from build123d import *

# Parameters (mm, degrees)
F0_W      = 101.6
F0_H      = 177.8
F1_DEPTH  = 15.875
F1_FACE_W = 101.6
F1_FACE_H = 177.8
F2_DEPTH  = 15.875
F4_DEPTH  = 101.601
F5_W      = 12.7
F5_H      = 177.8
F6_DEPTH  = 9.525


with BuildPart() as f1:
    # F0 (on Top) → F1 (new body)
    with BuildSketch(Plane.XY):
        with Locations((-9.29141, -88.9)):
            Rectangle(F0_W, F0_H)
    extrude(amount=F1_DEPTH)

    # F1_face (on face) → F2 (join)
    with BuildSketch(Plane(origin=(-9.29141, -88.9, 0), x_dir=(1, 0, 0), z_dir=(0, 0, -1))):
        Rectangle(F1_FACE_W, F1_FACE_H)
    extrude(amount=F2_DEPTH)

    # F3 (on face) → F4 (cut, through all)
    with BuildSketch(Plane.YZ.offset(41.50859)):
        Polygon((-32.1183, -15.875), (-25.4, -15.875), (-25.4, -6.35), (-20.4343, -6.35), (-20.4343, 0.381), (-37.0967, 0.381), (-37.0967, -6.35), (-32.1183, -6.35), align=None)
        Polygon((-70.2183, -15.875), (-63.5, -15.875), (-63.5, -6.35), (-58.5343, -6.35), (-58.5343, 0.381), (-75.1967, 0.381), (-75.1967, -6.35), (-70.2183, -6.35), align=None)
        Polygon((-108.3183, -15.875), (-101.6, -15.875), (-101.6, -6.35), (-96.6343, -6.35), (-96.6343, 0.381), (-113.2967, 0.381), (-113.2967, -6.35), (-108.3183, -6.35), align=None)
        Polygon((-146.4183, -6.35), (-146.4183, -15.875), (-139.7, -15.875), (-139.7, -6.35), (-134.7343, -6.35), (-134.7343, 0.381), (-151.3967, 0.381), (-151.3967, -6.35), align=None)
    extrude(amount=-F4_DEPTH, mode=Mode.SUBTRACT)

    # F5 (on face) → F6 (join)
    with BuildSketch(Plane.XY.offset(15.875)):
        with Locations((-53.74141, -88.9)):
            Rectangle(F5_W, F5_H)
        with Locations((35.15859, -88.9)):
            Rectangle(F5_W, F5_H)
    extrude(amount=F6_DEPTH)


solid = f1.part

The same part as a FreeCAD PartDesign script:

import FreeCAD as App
import Part
import Sketcher

V = App.Vector
Q = App.Units.Quantity


def add_polygon(sketch, points):
    """Adds a closed chain of lines whose ends are joined by coincident constraints."""
    first, n = sketch.GeometryCount, len(points)
    for a, b in zip(points, points[1:] + points[:1]):
        sketch.addGeometry(Part.LineSegment(App.Vector(*a, 0), App.Vector(*b, 0)), False)
    for i in range(n):
        sketch.addConstraint(Sketcher.Constraint("Coincident", first + i, 2, first + (i + 1) % n, 1))

doc = App.newDocument("Part")
body = doc.addObject("PartDesign::Body", "Body")

# Sketch on XY plane
sketch1 = body.newObject("Sketcher::SketchObject", "Sketch")
sketch1.AttachmentSupport = (doc.getObject("XY_Plane"), [""])
sketch1.MapMode = "FlatFace"
add_polygon(sketch1, [(-60, 0), (-60, -178), (42, -178), (42, 0)])  # lines 0-3
sketch1.addConstraint(Sketcher.Constraint("Vertical", 0))
sketch1.addConstraint(Sketcher.Constraint("Horizontal", 1))
sketch1.addConstraint(Sketcher.Constraint("Vertical", 2))
sketch1.addConstraint(Sketcher.Constraint("Horizontal", 3))
sketch1.addConstraint(Sketcher.Constraint("PointOnObject", 2, 2, -1))
sketch1.addConstraint(Sketcher.Constraint("DistanceX", 1, 1, 1, 2, Q("4 in")))
sketch1.addConstraint(Sketcher.Constraint("DistanceY", 0, 2, 0, 1, Q("7 in")))
sketch1.addConstraint(Sketcher.Constraint("DistanceX", 0, 2, -1, 1, 60.09141))
pad1 = body.newObject("PartDesign::Pad", "Pad")
pad1.Profile = sketch1
pad1.Length = Q("0.625 in")

# Sketch on XY plane
sketch2 = body.newObject("Sketcher::SketchObject", "Sketch001")
sketch2.AttachmentSupport = (doc.getObject("XY_Plane"), [""])
sketch2.MapMode = "FlatFace"
add_polygon(sketch2, [(-60, -178), (-60, 0), (42, 0), (42, -178)])  # lines 0-3
sketch2.addConstraint(Sketcher.Constraint("Vertical", 0))
sketch2.addConstraint(Sketcher.Constraint("Horizontal", 1))
sketch2.addConstraint(Sketcher.Constraint("Vertical", 2))
sketch2.addConstraint(Sketcher.Constraint("Horizontal", 3))
sketch2.addConstraint(Sketcher.Constraint("PointOnObject", 0, 2, -1))
sketch2.addConstraint(Sketcher.Constraint("DistanceX", 1, 1, 1, 2, Q("4 in")))
sketch2.addConstraint(Sketcher.Constraint("DistanceY", 0, 1, 0, 2, Q("7 in")))
sketch2.addConstraint(Sketcher.Constraint("DistanceX", 0, 2, -1, 1, 60.09141))
pad2 = body.newObject("PartDesign::Pad", "Pad001")
pad2.Profile = sketch2
pad2.Length = Q("0.625 in")
pad2.Reversed = True

# Sketch on YZ plane
sketch3 = body.newObject("Sketcher::SketchObject", "Sketch002")
sketch3.AttachmentSupport = (doc.getObject("YZ_Plane"), [""])
sketch3.MapMode = "FlatFace"
sketch3.AttachmentOffset = App.Placement(V(0, 0, 41.50859), App.Rotation())
add_polygon(sketch3, [(-32.1, -15.9), (-25.4, -15.9), (-25.4, -6.3), (-20.4, -6.3), (-20.4, 0.4), (-37.1, 0.4), (-37.1, -6.3), (-32.1, -6.3)])  # lines 0-7
add_polygon(sketch3, [(-70.2, -15.9), (-63.5, -15.9), (-63.5, -6.3), (-58.5, -6.3), (-58.5, 0.4), (-75.2, 0.4), (-75.2, -6.3), (-70.2, -6.3)])  # lines 8-15
add_polygon(sketch3, [(-108.3, -15.9), (-101.6, -15.9), (-101.6, -6.3), (-96.6, -6.3), (-96.6, 0.4), (-113.3, 0.4), (-113.3, -6.3), (-108.3, -6.3)])  # lines 16-23
add_polygon(sketch3, [(-146.4, -6.3), (-146.4, -15.9), (-139.7, -15.9), (-139.7, -6.3), (-134.7, -6.3), (-134.7, 0.4), (-151.4, 0.4), (-151.4, -6.3)])  # lines 24-31
sketch3.addConstraint(Sketcher.Constraint("Horizontal", 0))
sketch3.addConstraint(Sketcher.Constraint("Vertical", 1))
sketch3.addConstraint(Sketcher.Constraint("Horizontal", 2))
sketch3.addConstraint(Sketcher.Constraint("Vertical", 3))
sketch3.addConstraint(Sketcher.Constraint("Horizontal", 4))
sketch3.addConstraint(Sketcher.Constraint("Vertical", 5))
sketch3.addConstraint(Sketcher.Constraint("Horizontal", 6))
sketch3.addConstraint(Sketcher.Constraint("Vertical", 7))
sketch3.addConstraint(Sketcher.Constraint("Horizontal", 8))
sketch3.addConstraint(Sketcher.Constraint("Vertical", 9))
sketch3.addConstraint(Sketcher.Constraint("Horizontal", 10))
sketch3.addConstraint(Sketcher.Constraint("Vertical", 11))
sketch3.addConstraint(Sketcher.Constraint("Horizontal", 12))
sketch3.addConstraint(Sketcher.Constraint("Vertical", 13))
sketch3.addConstraint(Sketcher.Constraint("Horizontal", 14))
sketch3.addConstraint(Sketcher.Constraint("Vertical", 15))
sketch3.addConstraint(Sketcher.Constraint("Horizontal", 16))
sketch3.addConstraint(Sketcher.Constraint("Vertical", 17))
sketch3.addConstraint(Sketcher.Constraint("Horizontal", 18))
sketch3.addConstraint(Sketcher.Constraint("Vertical", 19))
sketch3.addConstraint(Sketcher.Constraint("Horizontal", 20))
sketch3.addConstraint(Sketcher.Constraint("Vertical", 21))
sketch3.addConstraint(Sketcher.Constraint("Horizontal", 22))
sketch3.addConstraint(Sketcher.Constraint("Vertical", 23))
sketch3.addConstraint(Sketcher.Constraint("Vertical", 24))
sketch3.addConstraint(Sketcher.Constraint("Horizontal", 25))
sketch3.addConstraint(Sketcher.Constraint("Vertical", 26))
sketch3.addConstraint(Sketcher.Constraint("Horizontal", 27))
sketch3.addConstraint(Sketcher.Constraint("Vertical", 28))
sketch3.addConstraint(Sketcher.Constraint("Horizontal", 29))
sketch3.addConstraint(Sketcher.Constraint("Vertical", 30))
sketch3.addConstraint(Sketcher.Constraint("Horizontal", 31))
sketch3.addConstraint(Sketcher.Constraint("Horizontal", 2, 2, 5, 2))
sketch3.addConstraint(Sketcher.Constraint("Horizontal", 7, 2, 8, 2))
sketch3.addConstraint(Sketcher.Constraint("Horizontal", 6, 2, 9, 2))
sketch3.addConstraint(Sketcher.Constraint("Horizontal", 4, 2, 11, 2))
sketch3.addConstraint(Sketcher.Constraint("Horizontal", 10, 2, 13, 2))
sketch3.addConstraint(Sketcher.Constraint("Horizontal", 15, 2, 16, 2))
sketch3.addConstraint(Sketcher.Constraint("Horizontal", 14, 2, 17, 2))
sketch3.addConstraint(Sketcher.Constraint("Horizontal", 12, 2, 19, 2))
sketch3.addConstraint(Sketcher.Constraint("Horizontal", 18, 2, 21, 2))
sketch3.addConstraint(Sketcher.Constraint("Horizontal", 23, 2, 24, 2))
sketch3.addConstraint(Sketcher.Constraint("Horizontal", 22, 2, 26, 2))
sketch3.addConstraint(Sketcher.Constraint("Horizontal", 20, 2, 28, 2))
sketch3.addConstraint(Sketcher.Constraint("Horizontal", 27, 2, 30, 2))
sketch3.addConstraint(Sketcher.Constraint("Equal", 0, 8))
sketch3.addConstraint(Sketcher.Constraint("Equal", 2, 10))
sketch3.addConstraint(Sketcher.Constraint("Equal", 4, 12))
sketch3.addConstraint(Sketcher.Constraint("Equal", 8, 16))
sketch3.addConstraint(Sketcher.Constraint("Equal", 10, 18))
sketch3.addConstraint(Sketcher.Constraint("Equal", 12, 20))
sketch3.addConstraint(Sketcher.Constraint("Equal", 16, 25))
sketch3.addConstraint(Sketcher.Constraint("Equal", 18, 27))
sketch3.addConstraint(Sketcher.Constraint("Equal", 20, 29))
sketch3.addConstraint(Sketcher.Constraint("DistanceX", 0, 2, -1, 1, Q("1 in")))
sketch3.addConstraint(Sketcher.Constraint("DistanceX", 16, 2, -1, 1, Q("4 in")))
sketch3.addConstraint(Sketcher.Constraint("DistanceX", 8, 2, -1, 1, Q("2.5 in")))
sketch3.addConstraint(Sketcher.Constraint("DistanceX", 25, 2, -1, 1, Q("5.5 in")))
sketch3.addConstraint(Sketcher.Constraint("DistanceX", 4, 2, 4, 1, Q("0.656 in")))
sketch3.addConstraint(Sketcher.Constraint("DistanceX", 6, 1, 6, 2, Q("0.196 in")))
sketch3.addConstraint(Sketcher.Constraint("DistanceY", 1, 1, 1, 2, Q("0.375 in")))
sketch3.addConstraint(Sketcher.Constraint("DistanceY", 3, 1, 3, 2, Q("0.265 in")))
sketch3.addConstraint(Sketcher.Constraint("DistanceY", 1, 2, -1, 1, Q("0.25 in")))
sketch3.addConstraint(Sketcher.Constraint("DistanceX", 0, 1, 0, 2, Q("0.2645 in")))
pocket1 = body.newObject("PartDesign::Pocket", "Pocket")
pocket1.Profile = sketch3
pocket1.Type = "ThroughAll"

# Sketch on XY plane
sketch4 = body.newObject("Sketcher::SketchObject", "Sketch003")
sketch4.AttachmentSupport = (doc.getObject("XY_Plane"), [""])
sketch4.MapMode = "FlatFace"
sketch4.AttachmentOffset = App.Placement(V(0, 0, 0.625 * 25.4), App.Rotation())
add_polygon(sketch4, [(-60, 0), (-60, -178), (-47, -178), (-47, 0)])  # lines 0-3
add_polygon(sketch4, [(29, 0), (29, -178), (42, -178), (42, 0)])  # lines 4-7
sketch4.addConstraint(Sketcher.Constraint("Vertical", 0))
sketch4.addConstraint(Sketcher.Constraint("Horizontal", 1))
sketch4.addConstraint(Sketcher.Constraint("Vertical", 2))
sketch4.addConstraint(Sketcher.Constraint("Horizontal", 3))
sketch4.addConstraint(Sketcher.Constraint("Vertical", 4))
sketch4.addConstraint(Sketcher.Constraint("Horizontal", 5))
sketch4.addConstraint(Sketcher.Constraint("Vertical", 6))
sketch4.addConstraint(Sketcher.Constraint("Horizontal", 7))
sketch4.addConstraint(Sketcher.Constraint("PointOnObject", 2, 2, -1))
sketch4.addConstraint(Sketcher.Constraint("PointOnObject", 6, 2, -1))
sketch4.addConstraint(Sketcher.Constraint("Horizontal", 1, 2, 4, 2))
sketch4.addConstraint(Sketcher.Constraint("Equal", 3, 5))
sketch4.addConstraint(Sketcher.Constraint("DistanceY", 0, 2, 0, 1, Q("7 in")))
sketch4.addConstraint(Sketcher.Constraint("DistanceX", 1, 1, 1, 2, Q("0.5 in")))
sketch4.addConstraint(Sketcher.Constraint("DistanceX", 1, 2, 4, 2, Q("3 in")))
sketch4.addConstraint(Sketcher.Constraint("DistanceX", 0, 2, -1, 1, 60.09141))
pad3 = body.newObject("PartDesign::Pad", "Pad002")
pad3.Profile = sketch4
pad3.Length = Q("0.375 in")

doc.recompute()
